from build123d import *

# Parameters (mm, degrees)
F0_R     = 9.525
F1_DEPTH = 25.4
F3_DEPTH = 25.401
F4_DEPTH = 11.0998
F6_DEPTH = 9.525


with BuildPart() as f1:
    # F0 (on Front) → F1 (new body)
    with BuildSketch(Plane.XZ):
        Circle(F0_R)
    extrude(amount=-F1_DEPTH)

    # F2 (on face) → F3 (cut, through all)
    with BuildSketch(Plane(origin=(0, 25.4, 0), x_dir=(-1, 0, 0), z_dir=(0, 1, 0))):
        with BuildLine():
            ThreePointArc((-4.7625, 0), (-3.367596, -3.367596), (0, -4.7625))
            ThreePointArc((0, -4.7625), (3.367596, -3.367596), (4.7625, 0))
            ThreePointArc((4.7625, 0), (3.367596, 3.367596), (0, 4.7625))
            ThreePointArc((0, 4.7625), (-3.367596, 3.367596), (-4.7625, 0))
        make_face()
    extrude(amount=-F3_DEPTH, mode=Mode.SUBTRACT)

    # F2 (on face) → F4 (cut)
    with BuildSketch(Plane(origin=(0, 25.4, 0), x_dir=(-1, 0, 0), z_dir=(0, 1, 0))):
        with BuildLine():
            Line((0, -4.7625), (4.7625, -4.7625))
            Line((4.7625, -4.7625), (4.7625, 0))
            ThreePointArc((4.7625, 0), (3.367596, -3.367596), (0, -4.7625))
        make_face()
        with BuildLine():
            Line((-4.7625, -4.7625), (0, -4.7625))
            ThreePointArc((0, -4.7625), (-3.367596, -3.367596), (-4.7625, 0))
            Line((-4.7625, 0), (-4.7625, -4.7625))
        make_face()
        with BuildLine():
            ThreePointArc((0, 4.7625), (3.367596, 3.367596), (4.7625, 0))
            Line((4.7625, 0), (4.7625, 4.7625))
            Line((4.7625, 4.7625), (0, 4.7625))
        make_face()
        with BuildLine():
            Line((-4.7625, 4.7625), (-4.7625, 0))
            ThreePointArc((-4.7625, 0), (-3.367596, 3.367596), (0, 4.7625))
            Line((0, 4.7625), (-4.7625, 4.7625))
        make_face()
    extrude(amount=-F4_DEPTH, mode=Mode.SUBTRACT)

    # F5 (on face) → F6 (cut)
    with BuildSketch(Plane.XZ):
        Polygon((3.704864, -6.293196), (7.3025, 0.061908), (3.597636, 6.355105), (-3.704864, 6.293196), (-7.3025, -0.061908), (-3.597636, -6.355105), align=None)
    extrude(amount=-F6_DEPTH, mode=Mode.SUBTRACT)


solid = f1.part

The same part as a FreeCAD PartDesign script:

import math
import FreeCAD as App
import Part
import Sketcher
from FreeCAD import Vector
Q = App.Units.Quantity

doc = App.newDocument("Part")
body = doc.addObject("PartDesign::Body", "Body")

sketch1 = body.newObject("Sketcher::SketchObject", "Sketch")
sketch1.AttachmentSupport = (doc.getObject("XZ_Plane"), [""])
sketch1.MapMode = "FlatFace"
sketch1.addGeometry(Part.Circle(Vector(0, 0, 0), Vector(0, 0, 1), 10), False)
sketch1.addConstraint([
    Sketcher.Constraint("Coincident", 0, 3, -1, 1),
    Sketcher.Constraint("Diameter", 0, Q("0.75 in")),
])
pad1 = body.newObject("PartDesign::Pad", "Pad")
pad1.Profile = sketch1
pad1.Length = Q("1 in")
pad1.Reversed = True

sketch2 = body.newObject("Sketcher::SketchObject", "Sketch001")
sketch2.AttachmentSupport = (doc.getObject("XZ_Plane"), [""])
sketch2.MapMode = "FlatFace"
sketch2.AttachmentOffset = App.Placement(Vector(0, 0, -1 * 25.4), App.Rotation())
sketch2.addGeometry([
    Part.ArcOfCircle(Part.Circle(Vector(0, 0, 0), Vector(0, 0, 1), 4.8), math.radians(-90), math.radians(0)),
    Part.ArcOfCircle(Part.Circle(Vector(0, 0, 0), Vector(0, 0, 1), 4.8), math.radians(-180), math.radians(-90)),
    Part.ArcOfCircle(Part.Circle(Vector(0, 0, 0), Vector(0, 0, 1), 4.8), math.radians(90), math.radians(180)),
    Part.ArcOfCircle(Part.Circle(Vector(0, 0, 0), Vector(0, 0, 1), 4.8), math.radians(0), math.radians(90)),
], False)
sketch2.addConstraint([
    Sketcher.Constraint("Tangent", 0, 1, 1, 2),
    Sketcher.Constraint("Tangent", 1, 1, 2, 2),
    Sketcher.Constraint("Tangent", 2, 1, 3, 2),
    Sketcher.Constraint("Tangent", 3, 1, 0, 2),
    Sketcher.Constraint("Coincident", 0, 3, -1, 1),
    Sketcher.Constraint("Equal", 0, 1),
    Sketcher.Constraint("PointOnObject", 0, 1, -2),
    Sketcher.Constraint("PointOnObject", 1, 1, -1),
    Sketcher.Constraint("PointOnObject", 2, 1, -2),
    Sketcher.Constraint("PointOnObject", 3, 1, -1),
    Sketcher.Constraint("Radius", 0, Q("0.1875 in")),
])
pocket1 = body.newObject("PartDesign::Pocket", "Pocket")
pocket1.Profile = sketch2
pocket1.Type = "ThroughAll"
pocket1.Reversed = True

sketch3 = body.newObject("Sketcher::SketchObject", "Sketch002")
sketch3.AttachmentSupport = (doc.getObject("XZ_Plane"), [""])
sketch3.MapMode = "FlatFace"
sketch3.AttachmentOffset = App.Placement(Vector(0, 0, -1 * 25.4), App.Rotation())
sketch3.addGeometry([
    Part.LineSegment(Vector(0, -4.8, 0), Vector(-4.8, -4.8, 0)),
    Part.LineSegment(Vector(-4.8, -4.8, 0), Vector(-4.8, 0, 0)),
    Part.ArcOfCircle(Part.Circle(Vector(0, 0, 0), Vector(0, 0, 1), 4.8), math.radians(-180), math.radians(-90)),
    Part.LineSegment(Vector(4.8, -4.8, 0), Vector(0, -4.8, 0)),
    Part.ArcOfCircle(Part.Circle(Vector(0, 0, 0), Vector(0, 0, 1), 4.8), math.radians(-90), math.radians(0)),
    Part.LineSegment(Vector(4.8, 0, 0), Vector(4.8, -4.8, 0)),
    Part.ArcOfCircle(Part.Circle(Vector(0, 0, 0), Vector(0, 0, 1), 4.8), math.radians(90), math.radians(180)),
    Part.LineSegment(Vector(-4.8, 0, 0), Vector(-4.8, 4.8, 0)),
    Part.LineSegment(Vector(-4.8, 4.8, 0), Vector(0, 4.8, 0)),
    Part.LineSegment(Vector(4.8, 4.8, 0), Vector(4.8, 0, 0)),
    Part.ArcOfCircle(Part.Circle(Vector(0, 0, 0), Vector(0, 0, 1), 4.8), math.radians(0), math.radians(90)),
    Part.LineSegment(Vector(0, 4.8, 0), Vector(4.8, 4.8, 0)),
], False)
sketch3.addConstraint([
    Sketcher.Constraint("Coincident", 0, 2, 1, 1),
    Sketcher.Constraint("Tangent", 1, 2, 2, 1),
    Sketcher.Constraint("Tangent", 2, 2, 0, 1),
    Sketcher.Constraint("Tangent", 3, 2, 4, 1),
    Sketcher.Constraint("Tangent", 4, 2, 5, 1),
    Sketcher.Constraint("Coincident", 5, 2, 3, 1),
    Sketcher.Constraint("Tangent", 6, 2, 7, 1),
    Sketcher.Constraint("Coincident", 7, 2, 8, 1),
    Sketcher.Constraint("Tangent", 8, 2, 6, 1),
    Sketcher.Constraint("Tangent", 9, 2, 10, 1),
    Sketcher.Constraint("Tangent", 10, 2, 11, 1),
    Sketcher.Constraint("Coincident", 11, 2, 9, 1),
    Sketcher.Constraint("Horizontal", 0),
    Sketcher.Constraint("Vertical", 1),
    Sketcher.Constraint("Horizontal", 3),
    Sketcher.Constraint("Vertical", 5),
    Sketcher.Constraint("Vertical", 7),
    Sketcher.Constraint("Horizontal", 8),
    Sketcher.Constraint("Vertical", 9),
    Sketcher.Constraint("Horizontal", 11),
    Sketcher.Constraint("Coincident", 2, 3, -1, 1),
    Sketcher.Constraint("Coincident", 4, 3, -1, 1),
    Sketcher.Constraint("Coincident", 6, 3, -1, 1),
    Sketcher.Constraint("Coincident", 10, 3, -1, 1),
    Sketcher.Constraint("Equal", 2, 4),
    Sketcher.Constraint("Equal", 4, 6),
    Sketcher.Constraint("Equal", 6, 10),
    Sketcher.Constraint("Radius", 2, Q("0.1875 in")),
])
pocket2 = body.newObject("PartDesign::Pocket", "Pocket001")
pocket2.Profile = sketch3
pocket2.Length = Q("0.437 in")
pocket2.Reversed = True

sketch4 = body.newObject("Sketcher::SketchObject", "Sketch003")
sketch4.AttachmentSupport = (doc.getObject("XZ_Plane"), [""])
sketch4.MapMode = "FlatFace"
sketch4.addGeometry([
    Part.LineSegment(Vector(3.704864, -6.293196, 0), Vector(7.3025, 0.061908, 0)),
    Part.LineSegment(Vector(7.3025, 0.061908, 0), Vector(3.597636, 6.355105, 0)),
    Part.LineSegment(Vector(3.597636, 6.355105, 0), Vector(-3.704864, 6.293196, 0)),
    Part.LineSegment(Vector(-3.704864, 6.293196, 0), Vector(-7.3025, -0.061908, 0)),
    Part.LineSegment(Vector(-7.3025, -0.061908, 0), Vector(-3.597636, -6.355105, 0)),
    Part.LineSegment(Vector(-3.597636, -6.355105, 0), Vector(3.704864, -6.293196, 0)),
], False)
sketch4.addConstraint([
    Sketcher.Constraint("Coincident", 0, 2, 1, 1),
    Sketcher.Constraint("Coincident", 1, 2, 2, 1),
    Sketcher.Constraint("Coincident", 2, 2, 3, 1),
    Sketcher.Constraint("Coincident", 3, 2, 4, 1),
    Sketcher.Constraint("Coincident", 4, 2, 5, 1),
    Sketcher.Constraint("Coincident", 5, 2, 0, 1),
    Sketcher.Constraint("Symmetric", 0, 2, 3, 2, -1, 1),
    Sketcher.Constraint("Symmetric", 1, 2, 4, 2, -1, 1),
    Sketcher.Constraint("Symmetric", 2, 2, 5, 2, -1, 1),
    Sketcher.Constraint("Equal", 0, 1),
    Sketcher.Constraint("Equal", 1, 2),
    Sketcher.Constraint("DistanceX", 3, 2, 0, 2, Q("0.575 in")),
    Sketcher.Constraint("DistanceX", 2, 2, 1, 2, Q("0.2875 in")),
    Sketcher.Constraint("DistanceY", 4, 2, 2, 2, 12.648301),
    Sketcher.Constraint("DistanceY", 2, 2, 1, 2, 0.061909),
])
pocket3 = body.newObject("PartDesign::Pocket", "Pocket002")
pocket3.Profile = sketch4
pocket3.Length = Q("0.375 in")

doc.recompute()
